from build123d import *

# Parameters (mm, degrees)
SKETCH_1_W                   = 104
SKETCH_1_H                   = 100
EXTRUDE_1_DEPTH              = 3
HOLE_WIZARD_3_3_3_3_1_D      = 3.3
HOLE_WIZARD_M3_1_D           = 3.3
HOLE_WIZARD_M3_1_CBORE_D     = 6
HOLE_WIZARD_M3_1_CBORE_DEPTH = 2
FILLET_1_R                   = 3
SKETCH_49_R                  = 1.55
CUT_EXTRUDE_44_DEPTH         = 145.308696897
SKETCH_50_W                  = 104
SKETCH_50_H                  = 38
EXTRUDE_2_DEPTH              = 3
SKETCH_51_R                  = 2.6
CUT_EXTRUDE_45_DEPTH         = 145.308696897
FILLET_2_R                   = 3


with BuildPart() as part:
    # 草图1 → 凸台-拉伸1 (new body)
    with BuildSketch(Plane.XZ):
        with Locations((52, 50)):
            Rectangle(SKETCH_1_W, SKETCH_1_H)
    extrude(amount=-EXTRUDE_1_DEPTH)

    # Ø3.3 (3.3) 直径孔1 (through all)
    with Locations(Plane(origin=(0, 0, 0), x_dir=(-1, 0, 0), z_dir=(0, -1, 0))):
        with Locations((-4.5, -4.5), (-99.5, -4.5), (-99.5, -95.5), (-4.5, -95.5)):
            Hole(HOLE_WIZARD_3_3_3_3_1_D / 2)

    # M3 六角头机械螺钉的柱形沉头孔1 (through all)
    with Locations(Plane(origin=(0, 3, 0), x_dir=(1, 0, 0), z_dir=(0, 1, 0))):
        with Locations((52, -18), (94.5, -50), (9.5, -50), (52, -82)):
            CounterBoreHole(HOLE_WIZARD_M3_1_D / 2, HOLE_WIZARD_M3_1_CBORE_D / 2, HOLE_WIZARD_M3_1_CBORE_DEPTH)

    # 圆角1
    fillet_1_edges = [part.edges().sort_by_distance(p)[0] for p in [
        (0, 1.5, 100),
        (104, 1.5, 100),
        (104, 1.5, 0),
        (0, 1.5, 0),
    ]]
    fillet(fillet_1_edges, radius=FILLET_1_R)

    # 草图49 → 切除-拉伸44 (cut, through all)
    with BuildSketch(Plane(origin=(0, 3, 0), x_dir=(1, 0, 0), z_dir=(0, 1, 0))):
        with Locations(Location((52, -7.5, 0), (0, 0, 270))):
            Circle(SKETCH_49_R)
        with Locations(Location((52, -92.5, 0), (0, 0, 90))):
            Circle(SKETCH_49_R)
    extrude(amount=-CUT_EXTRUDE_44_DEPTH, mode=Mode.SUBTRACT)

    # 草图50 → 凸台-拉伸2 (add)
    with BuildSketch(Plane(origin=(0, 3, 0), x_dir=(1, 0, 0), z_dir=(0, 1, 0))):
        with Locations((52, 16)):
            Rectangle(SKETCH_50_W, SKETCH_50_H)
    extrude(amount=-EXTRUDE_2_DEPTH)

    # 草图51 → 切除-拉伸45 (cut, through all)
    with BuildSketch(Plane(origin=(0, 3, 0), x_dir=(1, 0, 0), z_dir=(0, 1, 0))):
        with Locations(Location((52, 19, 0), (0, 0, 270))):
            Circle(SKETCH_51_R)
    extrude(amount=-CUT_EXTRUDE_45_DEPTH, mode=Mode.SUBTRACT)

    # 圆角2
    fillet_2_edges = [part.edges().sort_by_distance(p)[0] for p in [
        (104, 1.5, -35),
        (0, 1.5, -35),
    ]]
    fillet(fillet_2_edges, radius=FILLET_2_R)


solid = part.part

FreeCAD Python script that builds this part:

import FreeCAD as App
import Part
import Sketcher

V = App.Vector
Q = App.Units.Quantity


def edges_at(feature, points):
    """Names of the edges that pass closest to the given points."""
    edges = feature.Shape.Edges
    near = lambda p: min(range(len(edges)), key=lambda i: edges[i].distToShape(Part.Vertex(*p))[0])
    return sorted({f"Edge{near(p) + 1}" for p in points})

doc = App.newDocument("Part")
params = doc.addObject("Spreadsheet::Sheet", "Params")
for row, (alias, value) in enumerate([
    ("sketch1_width", "104 mm"),
    ("sketch1_height", "100 mm"),
    ("pad1_length", "3 mm"),
    ("sketch2_diameter", "3.3 mm"),
    ("hole_diameter", "3.3 mm"),
    ("sketch3_diameter", "3.3 mm"),
    ("hole2_diameter", "3.3 mm"),
    ("hole2_cbore_diameter", "6 mm"),
    ("hole2_cbore_depth", "2 mm"),
    ("fillet_radius", "3 mm"),
    ("sketch4_diameter", "3.1 mm"),
    ("sketch5_width", "104 mm"),
    ("sketch5_height", "38 mm"),
    ("pad2_length", "3 mm"),
    ("sketch6_diameter", "5.2 mm"),
    ("fillet2_radius", "3 mm"),
], start=1):
    params.set(f"A{row}", alias)
    params.set(f"B{row}", "=" + value)
    params.setAlias(f"B{row}", alias)

body = doc.addObject("PartDesign::Body", "Body")

# Sketch on XZ plane
sketch1 = body.newObject("Sketcher::SketchObject", "Sketch")
sketch1.AttachmentSupport = (doc.getObject("XZ_Plane"), [""])
sketch1.MapMode = "FlatFace"
sketch1.addGeometry(Part.LineSegment(V(0, 100, 0), V(0, 0, 0)), False)
sketch1.addGeometry(Part.LineSegment(V(0, 0, 0), V(104, 0, 0)), False)
sketch1.addGeometry(Part.LineSegment(V(104, 0, 0), V(104, 100, 0)), False)
sketch1.addGeometry(Part.LineSegment(V(104, 100, 0), V(0, 100, 0)), False)
sketch1.addConstraint(Sketcher.Constraint("Coincident", 0, 2, 1, 1))
sketch1.addConstraint(Sketcher.Constraint("Coincident", 1, 2, 2, 1))
sketch1.addConstraint(Sketcher.Constraint("Coincident", 2, 2, 3, 1))
sketch1.addConstraint(Sketcher.Constraint("Coincident", 3, 2, 0, 1))
sketch1.addConstraint(Sketcher.Constraint("Vertical", 0))
sketch1.addConstraint(Sketcher.Constraint("Horizontal", 1))
sketch1.addConstraint(Sketcher.Constraint("Vertical", 2))
sketch1.addConstraint(Sketcher.Constraint("Horizontal", 3))
sketch1.addConstraint(Sketcher.Constraint("Coincident", 0, 2, -1, 1))
sketch1.addConstraint(Sketcher.Constraint("DistanceX", 1, 1, 1, 2, Q("104 mm")))
sketch1.addConstraint(Sketcher.Constraint("DistanceY", 0, 2, 0, 1, Q("100 mm")))
sketch1.setExpression("Constraints[9]", "Params.sketch1_width")
sketch1.setExpression("Constraints[10]", "Params.sketch1_height")
pad1 = body.newObject("PartDesign::Pad", "Pad")
pad1.Profile = sketch1
pad1.setExpression("Length", "Params.pad1_length")
pad1.Reversed = True

# Sketch on XZ plane
sketch2 = body.newObject("Sketcher::SketchObject", "Sketch001")
sketch2.AttachmentSupport = (doc.getObject("XZ_Plane"), [""])
sketch2.MapMode = "FlatFace"
sketch2.addGeometry(Part.Circle(V(4.5, 4.5, 0), V(0, 0, 1), 1.65), False)
sketch2.addGeometry(Part.Circle(V(99.5, 4.5, 0), V(0, 0, 1), 1.65), False)
sketch2.addGeometry(Part.Circle(V(99.5, 95.5, 0), V(0, 0, 1), 1.65), False)
sketch2.addGeometry(Part.Circle(V(4.5, 95.5, 0), V(0, 0, 1), 1.65), False)
sketch2.addConstraint(Sketcher.Constraint("Equal", 0, 1))
sketch2.addConstraint(Sketcher.Constraint("Equal", 1, 2))
sketch2.addConstraint(Sketcher.Constraint("Equal", 2, 3))
sketch2.addConstraint(Sketcher.Constraint("Horizontal", 0, 3, 1, 3))
sketch2.addConstraint(Sketcher.Constraint("Horizontal", 2, 3, 3, 3))
sketch2.addConstraint(Sketcher.Constraint("Vertical", 1, 3, 2, 3))
sketch2.addConstraint(Sketcher.Constraint("Vertical", 0, 3, 3, 3))
sketch2.addConstraint(Sketcher.Constraint("Diameter", 0, Q("3.3 mm")))
sketch2.addConstraint(Sketcher.Constraint("DistanceX", 0, 3, 1, 3, Q("95 mm")))
sketch2.addConstraint(Sketcher.Constraint("DistanceY", 1, 3, 2, 3, Q("91 mm")))
sketch2.addConstraint(Sketcher.Constraint("DistanceX", -1, 1, 0, 3, Q("4.5 mm")))
sketch2.addConstraint(Sketcher.Constraint("DistanceY", -1, 1, 0, 3, Q("4.5 mm")))
sketch2.setExpression("Constraints[7]", "Params.sketch2_diameter")
doc.recompute()
hole = body.newObject("PartDesign::Hole", "Hole")
hole.Profile = sketch2
hole.ThreadType = "None"
hole.setExpression("Diameter", "Params.hole_diameter")
hole.DepthType = "ThroughAll"

# Sketch on XZ plane
sketch3 = body.newObject("Sketcher::SketchObject", "Sketch002")
sketch3.AttachmentSupport = (doc.getObject("XZ_Plane"), [""])
sketch3.MapMode = "FlatFace"
sketch3.AttachmentOffset = App.Placement(V(0, 0, -3), App.Rotation())
sketch3.addGeometry(Part.Circle(V(52, 18, 0), V(0, 0, 1), 1.65), False)
sketch3.addGeometry(Part.Circle(V(94.5, 50, 0), V(0, 0, 1), 1.65), False)
sketch3.addGeometry(Part.Circle(V(9.5, 50, 0), V(0, 0, 1), 1.65), False)
sketch3.addGeometry(Part.Circle(V(52, 82, 0), V(0, 0, 1), 1.65), False)
sketch3.addConstraint(Sketcher.Constraint("Equal", 0, 1))
sketch3.addConstraint(Sketcher.Constraint("Equal", 1, 2))
sketch3.addConstraint(Sketcher.Constraint("Equal", 2, 3))
sketch3.addConstraint(Sketcher.Constraint("Horizontal", 1, 3, 2, 3))
sketch3.addConstraint(Sketcher.Constraint("Vertical", 0, 3, 3, 3))
sketch3.addConstraint(Sketcher.Constraint("Diameter", 0, Q("3.3 mm")))
sketch3.addConstraint(Sketcher.Constraint("DistanceX", -1, 1, 0, 3, Q("52 mm")))
sketch3.addConstraint(Sketcher.Constraint("DistanceY", -1, 1, 0, 3, Q("18 mm")))
sketch3.addConstraint(Sketcher.Constraint("DistanceY", -1, 1, 1, 3, Q("50 mm")))
sketch3.addConstraint(Sketcher.Constraint("DistanceY", -1, 1, 3, 3, Q("82 mm")))
sketch3.addConstraint(Sketcher.Constraint("DistanceX", 2, 3, 1, 3, Q("85 mm")))
sketch3.addConstraint(Sketcher.Constraint("DistanceX", -1, 1, 1, 3, Q("94.5 mm")))
sketch3.setExpression("Constraints[5]", "Params.sketch3_diameter")
doc.recompute()
hole2 = body.newObject("PartDesign::Hole", "Hole001")
hole2.Profile = sketch3
hole2.ThreadType = "None"
hole2.setExpression("Diameter", "Params.hole2_diameter")
hole2.DepthType = "ThroughAll"
hole2.HoleCutType = "Counterbore"
hole2.setExpression("HoleCutDiameter", "Params.hole2_cbore_diameter")
hole2.setExpression("HoleCutDepth", "Params.hole2_cbore_depth")
hole2.Reversed = True
doc.recompute()

fillet = body.newObject("PartDesign::Fillet", "Fillet")
fillet.Base = (hole2, edges_at(hole2, [
    (0, 1.5, 100),
    (104, 1.5, 100),
    (104, 1.5, 0),
    (0, 1.5, 0),
]))
fillet.setExpression("Radius", "Params.fillet_radius")

# Sketch on XZ plane
sketch4 = body.newObject("Sketcher::SketchObject", "Sketch003")
sketch4.AttachmentSupport = (doc.getObject("XZ_Plane"), [""])
sketch4.MapMode = "FlatFace"
sketch4.AttachmentOffset = App.Placement(V(0, 0, -3), App.Rotation())
sketch4.addGeometry(Part.Circle(V(52, 7.5, 0), V(0, 0, 1), 1.55), False)
sketch4.addGeometry(Part.Circle(V(52, 92.5, 0), V(0, 0, 1), 1.55), False)
sketch4.addConstraint(Sketcher.Constraint("Equal", 0, 1))
sketch4.addConstraint(Sketcher.Constraint("Vertical", 0, 3, 1, 3))
sketch4.addConstraint(Sketcher.Constraint("Diameter", 0, Q("3.1 mm")))
sketch4.addConstraint(Sketcher.Constraint("DistanceX", -1, 1, 0, 3, Q("52 mm")))
sketch4.addConstraint(Sketcher.Constraint("DistanceY", 0, 3, 1, 3, Q("85 mm")))
sketch4.addConstraint(Sketcher.Constraint("DistanceY", -1, 1, 0, 3, Q("7.5 mm")))
sketch4.setExpression("Constraints[2]", "Params.sketch4_diameter")
pocket1 = body.newObject("PartDesign::Pocket", "Pocket")
pocket1.Profile = sketch4
pocket1.Type = "ThroughAll"
pocket1.Reversed = True

# Sketch on XZ plane
sketch5 = body.newObject("Sketcher::SketchObject", "Sketch004")
sketch5.AttachmentSupport = (doc.getObject("XZ_Plane"), [""])
sketch5.MapMode = "FlatFace"
sketch5.AttachmentOffset = App.Placement(V(0, 0, -3), App.Rotation())
sketch5.addGeometry(Part.LineSegment(V(0, -35, 0), V(0, 3, 0)), False)
sketch5.addGeometry(Part.LineSegment(V(0, 3, 0), V(104, 3, 0)), False)
sketch5.addGeometry(Part.LineSegment(V(104, 3, 0), V(104, -35, 0)), False)
sketch5.addGeometry(Part.LineSegment(V(104, -35, 0), V(0, -35, 0)), False)
sketch5.addConstraint(Sketcher.Constraint("Coincident", 0, 2, 1, 1))
sketch5.addConstraint(Sketcher.Constraint("Coincident", 1, 2, 2, 1))
sketch5.addConstraint(Sketcher.Constraint("Coincident", 2, 2, 3, 1))
sketch5.addConstraint(Sketcher.Constraint("Coincident", 3, 2, 0, 1))
sketch5.addConstraint(Sketcher.Constraint("Vertical", 0))
sketch5.addConstraint(Sketcher.Constraint("Horizontal", 1))
sketch5.addConstraint(Sketcher.Constraint("Vertical", 2))
sketch5.addConstraint(Sketcher.Constraint("Horizontal", 3))
sketch5.addConstraint(Sketcher.Constraint("PointOnObject", 0, 2, -2))
sketch5.addConstraint(Sketcher.Constraint("DistanceX", 1, 1, 1, 2, Q("104 mm")))
sketch5.addConstraint(Sketcher.Constraint("DistanceY", 0, 1, 0, 2, Q("38 mm")))
sketch5.addConstraint(Sketcher.Constraint("DistanceY", -1, 1, 0, 2, Q("3 mm")))
sketch5.setExpression("Constraints[9]", "Params.sketch5_width")
sketch5.setExpression("Constraints[10]", "Params.sketch5_height")
pad2 = body.newObject("PartDesign::Pad", "Pad001")
pad2.Profile = sketch5
pad2.setExpression("Length", "Params.pad2_length")

# Sketch on XZ plane
sketch6 = body.newObject("Sketcher::SketchObject", "Sketch005")
sketch6.AttachmentSupport = (doc.getObject("XZ_Plane"), [""])
sketch6.MapMode = "FlatFace"
sketch6.AttachmentOffset = App.Placement(V(0, 0, -3), App.Rotation())
sketch6.addGeometry(Part.Circle(V(52, -19, 0), V(0, 0, 1), 2.6), False)
sketch6.addConstraint(Sketcher.Constraint("Diameter", 0, Q("5.2 mm")))
sketch6.addConstraint(Sketcher.Constraint("DistanceX", -1, 1, 0, 3, Q("52 mm")))
sketch6.addConstraint(Sketcher.Constraint("DistanceY", 0, 3, -1, 1, Q("19 mm")))
sketch6.setExpression("Constraints[0]", "Params.sketch6_diameter")
pocket2 = body.newObject("PartDesign::Pocket", "Pocket001")
pocket2.Profile = sketch6
pocket2.Type = "ThroughAll"
pocket2.Reversed = True
doc.recompute()

fillet2 = body.newObject("PartDesign::Fillet", "Fillet001")
fillet2.Base = (pocket2, edges_at(pocket2, [(104, 1.5, -35), (0, 1.5, -35)]))
fillet2.setExpression("Radius", "Params.fillet2_radius")

doc.recompute()
